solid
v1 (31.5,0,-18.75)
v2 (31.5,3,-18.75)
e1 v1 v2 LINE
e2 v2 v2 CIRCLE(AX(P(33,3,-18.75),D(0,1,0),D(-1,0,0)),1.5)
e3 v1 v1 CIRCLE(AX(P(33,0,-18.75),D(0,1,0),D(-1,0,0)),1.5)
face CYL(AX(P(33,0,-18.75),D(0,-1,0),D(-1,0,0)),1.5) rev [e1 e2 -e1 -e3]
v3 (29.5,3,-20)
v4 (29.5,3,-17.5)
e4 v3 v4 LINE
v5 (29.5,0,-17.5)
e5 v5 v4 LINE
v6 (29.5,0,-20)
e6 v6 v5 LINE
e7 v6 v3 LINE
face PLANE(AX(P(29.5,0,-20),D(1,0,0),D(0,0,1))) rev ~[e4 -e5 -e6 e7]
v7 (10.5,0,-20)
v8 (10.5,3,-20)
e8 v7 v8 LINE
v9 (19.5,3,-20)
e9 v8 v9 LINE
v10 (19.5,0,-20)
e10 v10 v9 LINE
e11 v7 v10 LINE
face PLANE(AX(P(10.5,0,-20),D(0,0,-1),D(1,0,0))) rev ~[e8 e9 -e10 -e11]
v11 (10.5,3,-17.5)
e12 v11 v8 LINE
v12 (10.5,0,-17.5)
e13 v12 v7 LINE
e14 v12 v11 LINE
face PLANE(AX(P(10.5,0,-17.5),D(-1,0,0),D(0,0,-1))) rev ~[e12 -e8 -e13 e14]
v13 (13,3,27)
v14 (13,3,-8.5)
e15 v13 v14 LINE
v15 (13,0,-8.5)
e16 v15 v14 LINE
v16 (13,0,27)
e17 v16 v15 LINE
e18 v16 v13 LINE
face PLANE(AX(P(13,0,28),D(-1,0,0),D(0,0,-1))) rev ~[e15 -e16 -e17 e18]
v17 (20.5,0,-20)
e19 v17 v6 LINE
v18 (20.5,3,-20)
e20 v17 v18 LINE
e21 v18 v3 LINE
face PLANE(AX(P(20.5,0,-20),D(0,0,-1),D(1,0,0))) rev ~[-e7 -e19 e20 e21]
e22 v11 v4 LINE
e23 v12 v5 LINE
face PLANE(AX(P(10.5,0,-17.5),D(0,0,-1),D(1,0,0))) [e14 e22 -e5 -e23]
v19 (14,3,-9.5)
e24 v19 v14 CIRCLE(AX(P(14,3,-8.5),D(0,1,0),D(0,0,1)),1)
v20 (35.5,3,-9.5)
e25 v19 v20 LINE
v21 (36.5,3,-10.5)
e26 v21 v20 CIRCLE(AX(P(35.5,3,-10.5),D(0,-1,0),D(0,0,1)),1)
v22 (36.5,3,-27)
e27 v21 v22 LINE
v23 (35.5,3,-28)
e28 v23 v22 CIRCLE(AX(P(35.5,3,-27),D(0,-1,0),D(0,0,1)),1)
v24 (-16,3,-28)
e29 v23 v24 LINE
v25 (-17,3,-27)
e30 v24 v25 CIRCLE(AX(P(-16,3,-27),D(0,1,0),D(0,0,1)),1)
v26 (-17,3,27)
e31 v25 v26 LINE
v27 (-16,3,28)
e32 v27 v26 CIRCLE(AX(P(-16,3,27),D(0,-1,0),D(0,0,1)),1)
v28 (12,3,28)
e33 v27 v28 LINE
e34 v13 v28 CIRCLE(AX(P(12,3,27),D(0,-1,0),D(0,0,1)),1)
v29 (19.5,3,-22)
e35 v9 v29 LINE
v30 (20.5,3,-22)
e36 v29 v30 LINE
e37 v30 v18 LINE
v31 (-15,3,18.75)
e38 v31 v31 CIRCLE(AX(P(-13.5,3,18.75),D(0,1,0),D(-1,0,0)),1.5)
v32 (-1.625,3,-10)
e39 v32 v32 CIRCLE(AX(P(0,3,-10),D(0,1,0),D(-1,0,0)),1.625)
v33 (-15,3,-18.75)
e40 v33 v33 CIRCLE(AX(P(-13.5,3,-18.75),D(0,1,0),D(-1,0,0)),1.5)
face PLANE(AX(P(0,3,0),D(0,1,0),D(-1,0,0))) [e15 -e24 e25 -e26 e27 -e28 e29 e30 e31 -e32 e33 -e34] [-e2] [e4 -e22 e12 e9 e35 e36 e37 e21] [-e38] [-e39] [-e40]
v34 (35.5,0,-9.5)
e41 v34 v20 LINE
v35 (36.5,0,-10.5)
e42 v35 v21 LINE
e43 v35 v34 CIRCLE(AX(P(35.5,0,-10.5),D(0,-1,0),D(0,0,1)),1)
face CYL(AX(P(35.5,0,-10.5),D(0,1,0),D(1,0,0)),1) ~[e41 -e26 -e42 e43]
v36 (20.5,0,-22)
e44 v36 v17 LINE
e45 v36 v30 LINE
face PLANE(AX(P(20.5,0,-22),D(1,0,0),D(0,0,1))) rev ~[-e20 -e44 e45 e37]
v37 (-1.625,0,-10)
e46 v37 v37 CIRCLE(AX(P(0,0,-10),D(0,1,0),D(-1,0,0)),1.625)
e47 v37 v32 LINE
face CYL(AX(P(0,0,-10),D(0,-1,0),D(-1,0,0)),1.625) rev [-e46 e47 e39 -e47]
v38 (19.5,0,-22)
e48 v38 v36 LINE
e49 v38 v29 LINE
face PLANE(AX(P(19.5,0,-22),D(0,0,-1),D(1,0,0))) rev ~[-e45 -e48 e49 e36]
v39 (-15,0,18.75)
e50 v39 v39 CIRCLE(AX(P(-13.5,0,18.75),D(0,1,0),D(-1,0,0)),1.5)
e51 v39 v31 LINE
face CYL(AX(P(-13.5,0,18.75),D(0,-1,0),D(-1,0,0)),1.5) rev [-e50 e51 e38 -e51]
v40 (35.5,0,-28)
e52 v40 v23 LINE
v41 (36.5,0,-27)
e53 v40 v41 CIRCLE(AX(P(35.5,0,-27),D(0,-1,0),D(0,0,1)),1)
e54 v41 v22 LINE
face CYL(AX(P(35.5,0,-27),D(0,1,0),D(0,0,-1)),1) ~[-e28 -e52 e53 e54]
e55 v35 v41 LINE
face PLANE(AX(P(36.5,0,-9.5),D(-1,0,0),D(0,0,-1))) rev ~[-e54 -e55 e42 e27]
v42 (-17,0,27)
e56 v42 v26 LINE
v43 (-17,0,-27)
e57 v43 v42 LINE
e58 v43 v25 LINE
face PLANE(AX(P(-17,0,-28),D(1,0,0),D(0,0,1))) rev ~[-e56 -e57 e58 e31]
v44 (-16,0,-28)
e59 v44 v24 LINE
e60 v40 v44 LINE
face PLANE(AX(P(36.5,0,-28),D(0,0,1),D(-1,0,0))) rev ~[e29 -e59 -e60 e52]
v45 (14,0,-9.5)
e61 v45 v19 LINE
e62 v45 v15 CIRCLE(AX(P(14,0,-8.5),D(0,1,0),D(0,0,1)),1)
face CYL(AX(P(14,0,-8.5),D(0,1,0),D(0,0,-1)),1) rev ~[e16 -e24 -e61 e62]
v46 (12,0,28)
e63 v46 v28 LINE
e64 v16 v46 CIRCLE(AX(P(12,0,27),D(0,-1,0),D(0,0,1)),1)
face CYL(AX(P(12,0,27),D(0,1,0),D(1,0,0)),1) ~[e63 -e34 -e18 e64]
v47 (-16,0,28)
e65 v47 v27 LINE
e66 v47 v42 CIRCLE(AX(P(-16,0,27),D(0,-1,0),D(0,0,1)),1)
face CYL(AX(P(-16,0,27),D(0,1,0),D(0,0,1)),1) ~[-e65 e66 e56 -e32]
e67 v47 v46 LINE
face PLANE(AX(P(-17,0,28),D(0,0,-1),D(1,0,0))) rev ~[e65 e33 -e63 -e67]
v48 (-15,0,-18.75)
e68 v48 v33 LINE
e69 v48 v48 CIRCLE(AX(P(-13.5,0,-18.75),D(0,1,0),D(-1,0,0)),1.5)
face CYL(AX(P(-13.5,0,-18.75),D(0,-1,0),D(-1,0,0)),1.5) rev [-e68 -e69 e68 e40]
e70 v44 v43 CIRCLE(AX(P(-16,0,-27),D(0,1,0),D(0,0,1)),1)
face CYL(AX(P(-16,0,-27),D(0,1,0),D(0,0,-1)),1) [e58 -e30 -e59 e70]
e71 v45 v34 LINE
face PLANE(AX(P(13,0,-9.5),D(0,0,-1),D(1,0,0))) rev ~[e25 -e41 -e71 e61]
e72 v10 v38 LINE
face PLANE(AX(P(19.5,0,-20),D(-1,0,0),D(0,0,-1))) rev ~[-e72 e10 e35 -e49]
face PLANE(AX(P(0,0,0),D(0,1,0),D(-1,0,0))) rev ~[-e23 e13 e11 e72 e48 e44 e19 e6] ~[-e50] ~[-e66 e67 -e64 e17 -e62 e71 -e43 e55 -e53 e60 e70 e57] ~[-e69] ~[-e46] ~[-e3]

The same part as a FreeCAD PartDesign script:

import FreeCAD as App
import Part
import Sketcher


def edges_at(feature, points):
    """Names of the edges that pass closest to the given points."""
    edges = feature.Shape.Edges
    near = lambda p: min(range(len(edges)), key=lambda i: edges[i].distToShape(Part.Vertex(*p))[0])
    return sorted({f"Edge{near(p) + 1}" for p in points})

doc = App.newDocument("Part")
body = doc.addObject("PartDesign::Body", "Body")

# Sketch on XZ plane
sketch1 = body.newObject("Sketcher::SketchObject", "Sketch")
sketch1.AttachmentSupport = (doc.getObject("XZ_Plane"), [""])
sketch1.MapMode = "FlatFace"
sketch1.addGeometry([
    Part.LineSegment(App.Vector(36.5, -28, 0), App.Vector(-17, -28, 0)),  # 0
    Part.LineSegment(App.Vector(-17, -28, 0), App.Vector(-17, 28, 0)),  # 1
    Part.LineSegment(App.Vector(-17, 28, 0), App.Vector(13, 28, 0)),  # 2
    Part.LineSegment(App.Vector(13, 28, 0), App.Vector(13, -9.5, 0)),  # 3
    Part.LineSegment(App.Vector(13, -9.5, 0), App.Vector(36.5, -9.5, 0)),  # 4
    Part.LineSegment(App.Vector(36.5, -9.5, 0), App.Vector(36.5, -28, 0)),  # 5
    Part.Circle(App.Vector(33, -18.75, 0), App.Vector(0, 0, 1), 1.5),  # 6
    Part.LineSegment(App.Vector(20.5, -20, 0), App.Vector(29.5, -20, 0)),  # 7
    Part.LineSegment(App.Vector(29.5, -20, 0), App.Vector(29.5, -17.5, 0)),  # 8
    Part.LineSegment(App.Vector(29.5, -17.5, 0), App.Vector(10.5, -17.5, 0)),  # 9
    Part.LineSegment(App.Vector(10.5, -17.5, 0), App.Vector(10.5, -20, 0)),  # 10
    Part.LineSegment(App.Vector(10.5, -20, 0), App.Vector(19.5, -20, 0)),  # 11
    Part.LineSegment(App.Vector(19.5, -20, 0), App.Vector(19.5, -22, 0)),  # 12
    Part.LineSegment(App.Vector(19.5, -22, 0), App.Vector(20.5, -22, 0)),  # 13
    Part.LineSegment(App.Vector(20.5, -22, 0), App.Vector(20.5, -20, 0)),  # 14
    Part.Circle(App.Vector(-13.5, -18.75, 0), App.Vector(0, 0, 1), 1.5),  # 15
    Part.Circle(App.Vector(0, -10, 0), App.Vector(0, 0, 1), 1.625),  # 16
    Part.Circle(App.Vector(-13.5, 18.75, 0), App.Vector(0, 0, 1), 1.5),  # 17
], False)
sketch1.addConstraint([
    Sketcher.Constraint("Coincident", 0, 2, 1, 1),
    Sketcher.Constraint("Coincident", 1, 2, 2, 1),
    Sketcher.Constraint("Coincident", 2, 2, 3, 1),
    Sketcher.Constraint("Coincident", 3, 2, 4, 1),
    Sketcher.Constraint("Coincident", 4, 2, 5, 1),
    Sketcher.Constraint("Coincident", 5, 2, 0, 1),
    Sketcher.Constraint("Coincident", 7, 2, 8, 1),
    Sketcher.Constraint("Coincident", 8, 2, 9, 1),
    Sketcher.Constraint("Coincident", 9, 2, 10, 1),
    Sketcher.Constraint("Coincident", 10, 2, 11, 1),
    Sketcher.Constraint("Coincident", 11, 2, 12, 1),
    Sketcher.Constraint("Coincident", 12, 2, 13, 1),
    Sketcher.Constraint("Coincident", 13, 2, 14, 1),
    Sketcher.Constraint("Coincident", 14, 2, 7, 1),
    Sketcher.Constraint("Horizontal", 0),
    Sketcher.Constraint("Vertical", 1),
    Sketcher.Constraint("Horizontal", 2),
    Sketcher.Constraint("Vertical", 3),
    Sketcher.Constraint("Horizontal", 4),
    Sketcher.Constraint("Vertical", 5),
    Sketcher.Constraint("Horizontal", 7),
    Sketcher.Constraint("Vertical", 8),
    Sketcher.Constraint("Horizontal", 9),
    Sketcher.Constraint("Vertical", 10),
    Sketcher.Constraint("Horizontal", 11),
    Sketcher.Constraint("Vertical", 12),
    Sketcher.Constraint("Horizontal", 13),
    Sketcher.Constraint("Vertical", 14),
    Sketcher.Constraint("Equal", 6, 15),
    Sketcher.Constraint("Equal", 15, 17),
    Sketcher.Constraint("Symmetric", 15, 3, 17, 3, -1),
    Sketcher.Constraint("PointOnObject", 16, 3, -2),
    Sketcher.Constraint("Horizontal", 6, 3, 15, 3),
    Sketcher.Constraint("Horizontal", 7, 2, 10, 2),
    Sketcher.Constraint("Equal", 7, 11),
    Sketcher.Constraint("Diameter", 6, 3.0),
    Sketcher.Constraint("Diameter", 16, 3.25),
    Sketcher.Constraint("DistanceX", 9, 2, 9, 1, 19.0),
    Sketcher.Constraint("DistanceX", 13, 1, 13, 2, 1.0),
    Sketcher.Constraint("DistanceY", 12, 2, 12, 1, 2.0),
    Sketcher.Constraint("DistanceY", 5, 2, 5, 1, 18.5),
    Sketcher.Constraint("DistanceY", 8, 1, 8, 2, 2.5),
    Sketcher.Constraint("DistanceY", 16, 3, -1, 1, 10.0),
    Sketcher.Constraint("DistanceY", 7, 2, -1, 1, 20.0),
    Sketcher.Constraint("DistanceX", 2, 2, 6, 3, 20.0),
    Sketcher.Constraint("DistanceX", 7, 2, 5, 2, 7.0),
    Sketcher.Constraint("DistanceY", 5, 2, 7, 2, 8.0),
    Sketcher.Constraint("DistanceX", 0, 2, 15, 3, 3.5),
    Sketcher.Constraint("DistanceX", 6, 3, 4, 2, 3.5),
    Sketcher.Constraint("DistanceX", 2, 1, 2, 2, 30.0),
    Sketcher.Constraint("DistanceY", 1, 1, 1, 2, 56.0),
    Sketcher.Constraint("DistanceY", 0, 2, 15, 3, 9.25),
    Sketcher.Constraint("DistanceX", -1, 1, 6, 3, 33.0),
])
pad1 = body.newObject("PartDesign::Pad", "Pad")
pad1.Profile = sketch1
pad1.Length = 3
pad1.Reversed = True
doc.recompute()

fillet = body.newObject("PartDesign::Fillet", "Fillet")
fillet.Base = (pad1, edges_at(pad1, [
    (13, 1.5, 28),
    (-17, 1.5, 28),
    (13, 1.5, -9.5),
    (36.5, 1.5, -9.5),
    (36.5, 1.5, -28),
    (-17, 1.5, -28),
]))
fillet.Radius = 1

doc.recompute()
